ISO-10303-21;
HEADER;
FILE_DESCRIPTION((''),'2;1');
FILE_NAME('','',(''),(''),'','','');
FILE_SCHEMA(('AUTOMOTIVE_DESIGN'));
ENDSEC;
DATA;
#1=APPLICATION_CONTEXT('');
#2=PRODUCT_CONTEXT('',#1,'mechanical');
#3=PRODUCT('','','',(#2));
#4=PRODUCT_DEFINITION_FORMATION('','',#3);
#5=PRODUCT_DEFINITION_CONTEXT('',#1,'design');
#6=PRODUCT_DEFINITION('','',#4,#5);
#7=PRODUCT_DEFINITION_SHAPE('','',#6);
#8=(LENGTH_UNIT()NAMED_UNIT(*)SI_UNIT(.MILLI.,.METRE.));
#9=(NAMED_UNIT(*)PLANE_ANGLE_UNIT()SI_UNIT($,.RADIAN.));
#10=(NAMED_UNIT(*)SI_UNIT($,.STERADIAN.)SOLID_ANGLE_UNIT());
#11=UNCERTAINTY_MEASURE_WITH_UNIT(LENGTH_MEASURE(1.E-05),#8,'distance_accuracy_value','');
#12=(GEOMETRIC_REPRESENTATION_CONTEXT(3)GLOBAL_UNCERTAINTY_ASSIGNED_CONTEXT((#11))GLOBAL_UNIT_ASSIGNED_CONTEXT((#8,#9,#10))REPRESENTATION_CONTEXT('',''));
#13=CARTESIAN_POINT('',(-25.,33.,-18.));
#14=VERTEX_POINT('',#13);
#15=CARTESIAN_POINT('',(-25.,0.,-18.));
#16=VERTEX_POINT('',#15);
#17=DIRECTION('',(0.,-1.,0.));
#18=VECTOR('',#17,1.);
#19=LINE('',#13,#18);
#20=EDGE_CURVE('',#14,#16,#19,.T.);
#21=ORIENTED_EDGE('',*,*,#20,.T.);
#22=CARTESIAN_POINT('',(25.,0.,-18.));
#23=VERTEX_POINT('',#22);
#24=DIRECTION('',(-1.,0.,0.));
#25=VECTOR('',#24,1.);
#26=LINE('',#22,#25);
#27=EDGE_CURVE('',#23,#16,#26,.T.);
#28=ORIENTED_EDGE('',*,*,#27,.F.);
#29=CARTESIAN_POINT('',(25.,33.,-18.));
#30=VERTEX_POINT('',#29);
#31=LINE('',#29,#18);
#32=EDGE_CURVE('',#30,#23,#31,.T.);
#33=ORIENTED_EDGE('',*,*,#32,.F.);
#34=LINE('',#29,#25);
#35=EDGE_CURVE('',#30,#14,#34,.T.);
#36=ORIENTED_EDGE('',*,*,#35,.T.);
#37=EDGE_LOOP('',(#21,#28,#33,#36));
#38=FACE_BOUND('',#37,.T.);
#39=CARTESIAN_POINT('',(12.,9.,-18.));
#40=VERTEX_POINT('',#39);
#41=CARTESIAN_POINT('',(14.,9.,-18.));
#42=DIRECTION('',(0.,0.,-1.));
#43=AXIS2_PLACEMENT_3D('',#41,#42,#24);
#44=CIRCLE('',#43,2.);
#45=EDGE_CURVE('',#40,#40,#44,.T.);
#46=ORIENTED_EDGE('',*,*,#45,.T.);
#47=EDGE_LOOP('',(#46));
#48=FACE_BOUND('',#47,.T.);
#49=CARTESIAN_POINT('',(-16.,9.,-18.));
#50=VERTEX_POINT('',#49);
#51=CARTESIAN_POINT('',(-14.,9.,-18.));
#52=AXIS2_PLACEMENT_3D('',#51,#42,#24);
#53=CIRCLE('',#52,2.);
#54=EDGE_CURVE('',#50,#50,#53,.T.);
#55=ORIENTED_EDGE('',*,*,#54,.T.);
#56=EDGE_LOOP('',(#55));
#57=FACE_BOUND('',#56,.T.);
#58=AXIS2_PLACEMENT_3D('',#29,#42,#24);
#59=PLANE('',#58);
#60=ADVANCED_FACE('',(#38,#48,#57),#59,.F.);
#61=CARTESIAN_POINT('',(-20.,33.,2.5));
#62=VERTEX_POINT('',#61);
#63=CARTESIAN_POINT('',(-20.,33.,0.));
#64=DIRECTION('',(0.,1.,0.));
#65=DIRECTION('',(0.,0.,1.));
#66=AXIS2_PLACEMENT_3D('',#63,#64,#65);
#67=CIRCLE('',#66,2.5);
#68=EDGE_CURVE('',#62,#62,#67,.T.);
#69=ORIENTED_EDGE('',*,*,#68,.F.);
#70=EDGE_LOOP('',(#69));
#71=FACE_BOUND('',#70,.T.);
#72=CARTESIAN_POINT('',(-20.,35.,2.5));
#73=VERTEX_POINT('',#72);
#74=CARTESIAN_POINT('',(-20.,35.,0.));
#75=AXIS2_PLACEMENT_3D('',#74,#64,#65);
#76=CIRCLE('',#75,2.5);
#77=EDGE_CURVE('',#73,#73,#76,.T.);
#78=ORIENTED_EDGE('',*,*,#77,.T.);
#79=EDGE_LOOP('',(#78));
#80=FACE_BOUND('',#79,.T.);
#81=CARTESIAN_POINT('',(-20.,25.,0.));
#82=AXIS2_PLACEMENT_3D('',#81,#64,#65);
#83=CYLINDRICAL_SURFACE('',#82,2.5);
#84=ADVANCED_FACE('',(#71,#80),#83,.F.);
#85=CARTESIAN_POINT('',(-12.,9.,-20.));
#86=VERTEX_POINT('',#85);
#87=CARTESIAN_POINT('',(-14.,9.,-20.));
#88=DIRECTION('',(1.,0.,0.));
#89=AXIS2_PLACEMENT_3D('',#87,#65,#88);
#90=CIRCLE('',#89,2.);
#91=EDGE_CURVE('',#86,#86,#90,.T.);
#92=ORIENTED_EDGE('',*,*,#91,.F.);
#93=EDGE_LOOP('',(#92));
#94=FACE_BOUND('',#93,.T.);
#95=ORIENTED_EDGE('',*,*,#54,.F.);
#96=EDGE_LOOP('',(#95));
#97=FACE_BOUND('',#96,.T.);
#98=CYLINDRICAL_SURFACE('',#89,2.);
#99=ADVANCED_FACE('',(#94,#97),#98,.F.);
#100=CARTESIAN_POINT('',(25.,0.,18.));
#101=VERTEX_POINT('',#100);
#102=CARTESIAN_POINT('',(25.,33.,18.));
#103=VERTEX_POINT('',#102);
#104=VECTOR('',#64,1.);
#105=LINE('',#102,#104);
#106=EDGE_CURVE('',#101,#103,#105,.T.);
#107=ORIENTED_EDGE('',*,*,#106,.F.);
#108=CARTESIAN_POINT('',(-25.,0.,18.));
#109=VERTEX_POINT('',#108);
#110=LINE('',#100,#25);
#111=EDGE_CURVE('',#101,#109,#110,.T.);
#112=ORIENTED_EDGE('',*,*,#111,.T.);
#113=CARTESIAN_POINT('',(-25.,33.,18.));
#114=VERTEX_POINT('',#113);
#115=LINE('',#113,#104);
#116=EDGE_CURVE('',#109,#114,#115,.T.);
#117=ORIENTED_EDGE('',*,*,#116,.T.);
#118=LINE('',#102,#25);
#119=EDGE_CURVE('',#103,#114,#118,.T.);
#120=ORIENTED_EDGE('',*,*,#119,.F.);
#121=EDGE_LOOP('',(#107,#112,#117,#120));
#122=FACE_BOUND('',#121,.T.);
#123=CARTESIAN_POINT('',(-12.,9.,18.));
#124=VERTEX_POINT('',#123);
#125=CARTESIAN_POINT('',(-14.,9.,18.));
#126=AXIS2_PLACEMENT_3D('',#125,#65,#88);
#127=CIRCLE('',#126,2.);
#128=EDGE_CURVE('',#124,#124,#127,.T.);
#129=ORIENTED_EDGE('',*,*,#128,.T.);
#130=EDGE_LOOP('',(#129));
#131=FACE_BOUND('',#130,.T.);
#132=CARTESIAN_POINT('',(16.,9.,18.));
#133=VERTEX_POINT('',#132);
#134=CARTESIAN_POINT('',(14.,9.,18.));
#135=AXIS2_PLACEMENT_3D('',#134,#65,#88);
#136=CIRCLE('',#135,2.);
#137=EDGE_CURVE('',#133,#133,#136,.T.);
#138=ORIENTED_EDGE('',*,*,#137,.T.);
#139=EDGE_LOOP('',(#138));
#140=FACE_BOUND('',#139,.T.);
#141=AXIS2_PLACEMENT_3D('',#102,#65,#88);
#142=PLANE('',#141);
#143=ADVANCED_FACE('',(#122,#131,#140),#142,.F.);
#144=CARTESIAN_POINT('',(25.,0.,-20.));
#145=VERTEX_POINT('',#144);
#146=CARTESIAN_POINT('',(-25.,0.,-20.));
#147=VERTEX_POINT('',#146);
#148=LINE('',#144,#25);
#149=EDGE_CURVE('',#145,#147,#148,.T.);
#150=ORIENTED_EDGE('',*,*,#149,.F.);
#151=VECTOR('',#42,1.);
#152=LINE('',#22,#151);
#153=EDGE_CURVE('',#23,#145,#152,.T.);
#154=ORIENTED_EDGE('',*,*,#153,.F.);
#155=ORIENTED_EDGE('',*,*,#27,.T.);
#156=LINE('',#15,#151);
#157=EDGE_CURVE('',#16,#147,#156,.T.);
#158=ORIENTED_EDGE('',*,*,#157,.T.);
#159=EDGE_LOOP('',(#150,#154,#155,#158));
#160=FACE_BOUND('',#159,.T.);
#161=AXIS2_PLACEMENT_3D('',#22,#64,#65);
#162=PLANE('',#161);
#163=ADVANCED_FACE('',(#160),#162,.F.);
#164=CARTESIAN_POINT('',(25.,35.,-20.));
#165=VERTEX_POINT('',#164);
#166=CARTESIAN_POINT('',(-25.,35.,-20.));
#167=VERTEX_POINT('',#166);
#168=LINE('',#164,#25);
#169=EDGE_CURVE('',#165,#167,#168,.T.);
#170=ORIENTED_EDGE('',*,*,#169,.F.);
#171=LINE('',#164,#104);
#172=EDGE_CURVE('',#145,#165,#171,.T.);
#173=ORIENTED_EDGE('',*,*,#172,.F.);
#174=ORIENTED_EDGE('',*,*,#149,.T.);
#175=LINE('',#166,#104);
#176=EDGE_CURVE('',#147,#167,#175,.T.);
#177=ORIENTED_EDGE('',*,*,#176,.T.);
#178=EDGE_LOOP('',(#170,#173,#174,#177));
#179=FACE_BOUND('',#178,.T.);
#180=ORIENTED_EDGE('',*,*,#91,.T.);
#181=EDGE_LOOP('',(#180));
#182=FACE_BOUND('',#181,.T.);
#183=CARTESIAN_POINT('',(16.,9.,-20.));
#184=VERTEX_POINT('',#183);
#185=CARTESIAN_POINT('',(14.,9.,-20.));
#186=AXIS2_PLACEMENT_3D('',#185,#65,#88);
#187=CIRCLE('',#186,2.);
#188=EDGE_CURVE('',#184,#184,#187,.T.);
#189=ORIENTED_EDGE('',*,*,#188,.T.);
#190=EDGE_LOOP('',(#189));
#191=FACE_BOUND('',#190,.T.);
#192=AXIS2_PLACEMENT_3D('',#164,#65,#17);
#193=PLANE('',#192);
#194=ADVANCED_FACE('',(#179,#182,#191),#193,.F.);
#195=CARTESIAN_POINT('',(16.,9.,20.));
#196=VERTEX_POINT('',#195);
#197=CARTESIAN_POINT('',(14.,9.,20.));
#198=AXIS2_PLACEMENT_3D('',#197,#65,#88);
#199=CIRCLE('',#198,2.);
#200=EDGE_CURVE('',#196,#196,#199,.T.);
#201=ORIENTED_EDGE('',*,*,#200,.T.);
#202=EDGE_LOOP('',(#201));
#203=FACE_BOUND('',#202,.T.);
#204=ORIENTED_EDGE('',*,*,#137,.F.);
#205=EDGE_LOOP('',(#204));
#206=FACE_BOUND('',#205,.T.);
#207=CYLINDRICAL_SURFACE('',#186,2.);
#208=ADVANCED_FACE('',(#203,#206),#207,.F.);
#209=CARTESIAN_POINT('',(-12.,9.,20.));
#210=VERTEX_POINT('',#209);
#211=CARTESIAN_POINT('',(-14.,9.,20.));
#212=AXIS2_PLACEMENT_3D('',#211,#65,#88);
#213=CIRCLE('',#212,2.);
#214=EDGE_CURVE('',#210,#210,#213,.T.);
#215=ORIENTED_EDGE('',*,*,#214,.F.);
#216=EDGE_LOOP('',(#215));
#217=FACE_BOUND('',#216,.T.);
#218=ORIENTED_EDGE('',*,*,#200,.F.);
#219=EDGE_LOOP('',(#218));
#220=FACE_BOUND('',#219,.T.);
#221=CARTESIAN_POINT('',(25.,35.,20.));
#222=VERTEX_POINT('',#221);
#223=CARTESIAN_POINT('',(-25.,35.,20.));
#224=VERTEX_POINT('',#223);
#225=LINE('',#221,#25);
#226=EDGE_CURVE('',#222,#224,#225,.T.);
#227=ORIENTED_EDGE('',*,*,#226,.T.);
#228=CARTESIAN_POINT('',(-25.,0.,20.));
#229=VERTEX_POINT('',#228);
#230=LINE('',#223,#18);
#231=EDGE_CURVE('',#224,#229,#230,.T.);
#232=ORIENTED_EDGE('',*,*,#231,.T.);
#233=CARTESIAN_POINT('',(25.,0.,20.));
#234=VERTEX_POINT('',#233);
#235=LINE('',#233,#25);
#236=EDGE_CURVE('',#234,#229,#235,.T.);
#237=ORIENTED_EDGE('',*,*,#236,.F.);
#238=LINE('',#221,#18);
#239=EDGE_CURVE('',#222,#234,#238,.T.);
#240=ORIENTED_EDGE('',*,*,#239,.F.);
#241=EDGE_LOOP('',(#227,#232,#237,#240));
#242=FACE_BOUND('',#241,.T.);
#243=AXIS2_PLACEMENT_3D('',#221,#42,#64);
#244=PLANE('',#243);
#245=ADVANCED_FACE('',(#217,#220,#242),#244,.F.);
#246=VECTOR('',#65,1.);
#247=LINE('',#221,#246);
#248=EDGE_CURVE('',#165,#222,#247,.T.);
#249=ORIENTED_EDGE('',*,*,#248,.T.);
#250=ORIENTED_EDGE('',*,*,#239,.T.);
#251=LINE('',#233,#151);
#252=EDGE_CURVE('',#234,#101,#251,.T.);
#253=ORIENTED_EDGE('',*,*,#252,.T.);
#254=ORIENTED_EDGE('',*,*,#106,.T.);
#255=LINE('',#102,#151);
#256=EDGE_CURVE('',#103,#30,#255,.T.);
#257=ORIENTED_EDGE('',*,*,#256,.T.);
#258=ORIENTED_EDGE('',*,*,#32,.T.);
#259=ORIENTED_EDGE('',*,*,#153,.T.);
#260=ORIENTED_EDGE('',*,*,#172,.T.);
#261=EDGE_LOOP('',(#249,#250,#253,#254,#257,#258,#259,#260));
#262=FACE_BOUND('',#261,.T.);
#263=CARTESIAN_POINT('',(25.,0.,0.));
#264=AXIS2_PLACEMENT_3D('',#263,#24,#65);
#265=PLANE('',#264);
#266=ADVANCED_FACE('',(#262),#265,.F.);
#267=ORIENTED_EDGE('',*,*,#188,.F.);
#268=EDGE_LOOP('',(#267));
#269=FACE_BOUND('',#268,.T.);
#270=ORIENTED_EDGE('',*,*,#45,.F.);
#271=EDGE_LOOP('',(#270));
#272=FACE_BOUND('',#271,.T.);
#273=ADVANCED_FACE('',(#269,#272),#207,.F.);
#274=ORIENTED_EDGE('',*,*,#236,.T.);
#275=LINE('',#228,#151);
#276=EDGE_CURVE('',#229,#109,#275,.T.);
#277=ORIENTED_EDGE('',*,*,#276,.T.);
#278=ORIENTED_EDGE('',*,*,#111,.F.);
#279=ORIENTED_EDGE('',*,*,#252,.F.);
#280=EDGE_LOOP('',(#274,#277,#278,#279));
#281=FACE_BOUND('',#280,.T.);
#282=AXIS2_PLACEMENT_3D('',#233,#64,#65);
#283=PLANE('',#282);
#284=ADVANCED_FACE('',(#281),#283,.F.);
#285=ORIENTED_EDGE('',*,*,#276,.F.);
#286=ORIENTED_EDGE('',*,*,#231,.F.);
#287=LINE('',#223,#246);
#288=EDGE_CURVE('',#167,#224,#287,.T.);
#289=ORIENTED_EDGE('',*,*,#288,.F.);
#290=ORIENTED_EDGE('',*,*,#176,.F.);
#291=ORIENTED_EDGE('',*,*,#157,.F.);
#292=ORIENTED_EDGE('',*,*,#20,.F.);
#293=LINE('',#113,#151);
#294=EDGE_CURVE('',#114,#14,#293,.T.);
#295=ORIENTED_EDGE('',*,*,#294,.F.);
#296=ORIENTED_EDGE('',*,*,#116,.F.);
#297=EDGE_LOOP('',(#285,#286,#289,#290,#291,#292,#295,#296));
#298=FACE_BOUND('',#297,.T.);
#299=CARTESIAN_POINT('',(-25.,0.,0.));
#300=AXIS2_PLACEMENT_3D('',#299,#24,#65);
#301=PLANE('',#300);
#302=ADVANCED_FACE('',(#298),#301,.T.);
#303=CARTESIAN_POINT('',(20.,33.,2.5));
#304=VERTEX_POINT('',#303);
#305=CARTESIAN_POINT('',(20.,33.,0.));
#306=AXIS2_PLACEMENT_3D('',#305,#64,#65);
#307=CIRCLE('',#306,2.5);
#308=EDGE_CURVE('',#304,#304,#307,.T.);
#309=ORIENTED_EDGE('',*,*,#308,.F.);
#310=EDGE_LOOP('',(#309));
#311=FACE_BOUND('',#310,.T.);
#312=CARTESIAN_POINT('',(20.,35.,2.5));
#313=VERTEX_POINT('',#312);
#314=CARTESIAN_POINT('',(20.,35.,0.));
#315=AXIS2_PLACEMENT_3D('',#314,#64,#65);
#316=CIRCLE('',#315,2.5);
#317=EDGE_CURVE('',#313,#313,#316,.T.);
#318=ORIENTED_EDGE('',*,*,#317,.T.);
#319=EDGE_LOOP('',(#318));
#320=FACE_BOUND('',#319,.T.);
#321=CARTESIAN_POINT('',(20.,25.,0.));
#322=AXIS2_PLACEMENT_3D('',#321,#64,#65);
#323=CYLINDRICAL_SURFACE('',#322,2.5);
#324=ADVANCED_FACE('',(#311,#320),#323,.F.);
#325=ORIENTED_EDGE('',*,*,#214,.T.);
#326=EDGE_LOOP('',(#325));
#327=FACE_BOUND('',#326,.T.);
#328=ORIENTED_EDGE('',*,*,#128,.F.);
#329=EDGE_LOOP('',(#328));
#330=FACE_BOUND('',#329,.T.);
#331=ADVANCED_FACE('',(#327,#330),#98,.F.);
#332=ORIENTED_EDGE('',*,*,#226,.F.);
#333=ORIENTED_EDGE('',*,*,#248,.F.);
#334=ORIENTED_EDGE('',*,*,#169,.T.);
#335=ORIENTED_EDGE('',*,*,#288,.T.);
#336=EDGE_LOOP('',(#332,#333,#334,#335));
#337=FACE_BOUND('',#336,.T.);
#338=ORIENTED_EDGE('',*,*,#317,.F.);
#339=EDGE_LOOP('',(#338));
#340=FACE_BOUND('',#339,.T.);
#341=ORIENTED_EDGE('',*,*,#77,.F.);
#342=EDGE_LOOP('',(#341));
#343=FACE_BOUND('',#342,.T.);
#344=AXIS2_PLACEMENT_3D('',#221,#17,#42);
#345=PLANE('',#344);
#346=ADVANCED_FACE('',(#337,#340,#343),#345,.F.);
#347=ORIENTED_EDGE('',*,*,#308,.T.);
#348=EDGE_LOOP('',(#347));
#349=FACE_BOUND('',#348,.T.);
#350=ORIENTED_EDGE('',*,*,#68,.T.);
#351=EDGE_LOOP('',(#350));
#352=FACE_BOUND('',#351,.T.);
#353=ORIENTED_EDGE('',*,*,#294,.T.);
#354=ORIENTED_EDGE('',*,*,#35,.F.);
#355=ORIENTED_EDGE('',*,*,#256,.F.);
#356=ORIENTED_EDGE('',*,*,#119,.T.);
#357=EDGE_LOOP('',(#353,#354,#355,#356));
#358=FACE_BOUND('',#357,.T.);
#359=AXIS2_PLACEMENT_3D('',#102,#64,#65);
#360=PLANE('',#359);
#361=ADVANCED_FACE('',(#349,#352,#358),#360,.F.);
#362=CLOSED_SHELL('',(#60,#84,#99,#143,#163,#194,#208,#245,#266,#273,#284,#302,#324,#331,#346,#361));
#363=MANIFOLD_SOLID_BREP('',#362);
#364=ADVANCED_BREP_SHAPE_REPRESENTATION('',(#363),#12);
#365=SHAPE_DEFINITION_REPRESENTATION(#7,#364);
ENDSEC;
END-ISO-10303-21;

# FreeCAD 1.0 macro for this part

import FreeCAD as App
import Part
import Sketcher
from FreeCAD import Vector
Q = App.Units.Quantity

doc = App.newDocument("Part")
params = doc.addObject("Spreadsheet::Sheet", "Params")
for row, (alias, value) in enumerate([
    ("sketch1_width", "33 mm"),
    ("sketch1_width2", "35 mm"),
    ("sketch1_height", "2 mm"),
    ("sketch1_height2", "40 mm"),
    ("pad1_length", "50 mm"),
    ("sketch2_diameter", "4 mm"),
    ("sketch3_diameter", "5 mm"),
    ("pocket2_length", "10 mm"),
], start=1):
    params.set(f"A{row}", alias)
    params.set(f"B{row}", "=" + value)
    params.setAlias(f"B{row}", alias)

body = doc.addObject("PartDesign::Body", "Body")

# Sketch on YZ plane
sketch1 = doc.addObject("Sketcher::SketchObject", "Sketch")
body.addObject(sketch1)
sketch1.AttachmentSupport = (doc.YZ_Plane, [""])
sketch1.MapMode = "FlatFace"
sketch1.addGeometry([
    Part.LineSegment(Vector(33, -18, 0), Vector(0, -18, 0)),  # 0
    Part.LineSegment(Vector(0, -18, 0), Vector(0, -20, 0)),  # 1
    Part.LineSegment(Vector(0, -20, 0), Vector(35, -20, 0)),  # 2
    Part.LineSegment(Vector(35, -20, 0), Vector(35, 20, 0)),  # 3
    Part.LineSegment(Vector(35, 20, 0), Vector(0, 20, 0)),  # 4
    Part.LineSegment(Vector(0, 20, 0), Vector(0, 18, 0)),  # 5
    Part.LineSegment(Vector(0, 18, 0), Vector(33, 18, 0)),  # 6
    Part.LineSegment(Vector(33, 18, 0), Vector(33, -18, 0)),  # 7
], False)
sketch1.addConstraint([
    Sketcher.Constraint("Coincident", 0, 2, 1, 1),
    Sketcher.Constraint("Coincident", 1, 2, 2, 1),
    Sketcher.Constraint("Coincident", 2, 2, 3, 1),
    Sketcher.Constraint("Coincident", 3, 2, 4, 1),
    Sketcher.Constraint("Coincident", 4, 2, 5, 1),
    Sketcher.Constraint("Coincident", 5, 2, 6, 1),
    Sketcher.Constraint("Coincident", 6, 2, 7, 1),
    Sketcher.Constraint("Coincident", 7, 2, 0, 1),
    Sketcher.Constraint("Horizontal", 0),
    Sketcher.Constraint("Vertical", 1),
    Sketcher.Constraint("Horizontal", 2),
    Sketcher.Constraint("Vertical", 3),
    Sketcher.Constraint("Horizontal", 4),
    Sketcher.Constraint("Vertical", 5),
    Sketcher.Constraint("Horizontal", 6),
    Sketcher.Constraint("Vertical", 7),
    Sketcher.Constraint("Symmetric", 1, 2, 4, 2, -1, 1),
    Sketcher.Constraint("Symmetric", 0, 2, 5, 2, -1),
    Sketcher.Constraint("DistanceX", 0, 2, 0, 1, Q("33 mm")),
    Sketcher.Constraint("DistanceX", 2, 1, 2, 2, Q("35 mm")),
    Sketcher.Constraint("DistanceY", 1, 2, 1, 1, Q("2 mm")),
    Sketcher.Constraint("DistanceY", 3, 1, 3, 2, Q("40 mm")),
])
sketch1.setExpression("Constraints[18]", "Params.sketch1_width")
sketch1.setExpression("Constraints[19]", "Params.sketch1_width2")
sketch1.setExpression("Constraints[20]", "Params.sketch1_height")
sketch1.setExpression("Constraints[21]", "Params.sketch1_height2")
pad1 = doc.addObject("PartDesign::Pad", "Pad")
body.addObject(pad1)
pad1.Profile = sketch1
pad1.setExpression("Length", "Params.pad1_length")
pad1.Midplane = True

# Sketch on XY plane
sketch2 = doc.addObject("Sketcher::SketchObject", "Sketch001")
body.addObject(sketch2)
sketch2.AttachmentSupport = (doc.XY_Plane, [""])
sketch2.MapMode = "FlatFace"
sketch2.AttachmentOffset = App.Placement(Vector(0, 0, 20), App.Rotation())
sketch2.addGeometry([
    Part.Circle(Vector(-14, 9, 0), Vector(0, 0, 1), 2),
    Part.Circle(Vector(14, 9, 0), Vector(0, 0, 1), 2),
], False)
sketch2.addConstraint([
    Sketcher.Constraint("Equal", 0, 1),
    Sketcher.Constraint("Symmetric", 0, 3, 1, 3, -2),
    Sketcher.Constraint("Diameter", 0, Q("4 mm")),
    Sketcher.Constraint("DistanceX", 0, 3, -1, 1, Q("14 mm")),
    Sketcher.Constraint("DistanceY", -1, 1, 0, 3, Q("9 mm")),
])
sketch2.setExpression("Constraints[2]", "Params.sketch2_diameter")
pocket1 = doc.addObject("PartDesign::Pocket", "Pocket")
body.addObject(pocket1)
pocket1.Profile = sketch2
pocket1.Type = "ThroughAll"

# Sketch on XZ plane
sketch3 = doc.addObject("Sketcher::SketchObject", "Sketch002")
body.addObject(sketch3)
sketch3.AttachmentSupport = (doc.XZ_Plane, [""])
sketch3.MapMode = "FlatFace"
sketch3.AttachmentOffset = App.Placement(Vector(0, 0, -35), App.Rotation())
sketch3.addGeometry([
    Part.Circle(Vector(-20, 0, 0), Vector(0, 0, 1), 2.5),
    Part.Circle(Vector(20, 0, 0), Vector(0, 0, 1), 2.5),
], False)
sketch3.addConstraint([
    Sketcher.Constraint("Equal", 0, 1),
    Sketcher.Constraint("Symmetric", 0, 3, 1, 3, -1, 1),
    Sketcher.Constraint("PointOnObject", 0, 3, -1),
    Sketcher.Constraint("Diameter", 0, Q("5 mm")),
    Sketcher.Constraint("DistanceX", 0, 3, -1, 1, Q("20 mm")),
])
sketch3.setExpression("Constraints[3]", "Params.sketch3_diameter")
pocket2 = doc.addObject("PartDesign::Pocket", "Pocket001")
body.addObject(pocket2)
pocket2.Profile = sketch3
pocket2.setExpression("Length", "Params.pocket2_length")
pocket2.Reversed = True

doc.recompute()
